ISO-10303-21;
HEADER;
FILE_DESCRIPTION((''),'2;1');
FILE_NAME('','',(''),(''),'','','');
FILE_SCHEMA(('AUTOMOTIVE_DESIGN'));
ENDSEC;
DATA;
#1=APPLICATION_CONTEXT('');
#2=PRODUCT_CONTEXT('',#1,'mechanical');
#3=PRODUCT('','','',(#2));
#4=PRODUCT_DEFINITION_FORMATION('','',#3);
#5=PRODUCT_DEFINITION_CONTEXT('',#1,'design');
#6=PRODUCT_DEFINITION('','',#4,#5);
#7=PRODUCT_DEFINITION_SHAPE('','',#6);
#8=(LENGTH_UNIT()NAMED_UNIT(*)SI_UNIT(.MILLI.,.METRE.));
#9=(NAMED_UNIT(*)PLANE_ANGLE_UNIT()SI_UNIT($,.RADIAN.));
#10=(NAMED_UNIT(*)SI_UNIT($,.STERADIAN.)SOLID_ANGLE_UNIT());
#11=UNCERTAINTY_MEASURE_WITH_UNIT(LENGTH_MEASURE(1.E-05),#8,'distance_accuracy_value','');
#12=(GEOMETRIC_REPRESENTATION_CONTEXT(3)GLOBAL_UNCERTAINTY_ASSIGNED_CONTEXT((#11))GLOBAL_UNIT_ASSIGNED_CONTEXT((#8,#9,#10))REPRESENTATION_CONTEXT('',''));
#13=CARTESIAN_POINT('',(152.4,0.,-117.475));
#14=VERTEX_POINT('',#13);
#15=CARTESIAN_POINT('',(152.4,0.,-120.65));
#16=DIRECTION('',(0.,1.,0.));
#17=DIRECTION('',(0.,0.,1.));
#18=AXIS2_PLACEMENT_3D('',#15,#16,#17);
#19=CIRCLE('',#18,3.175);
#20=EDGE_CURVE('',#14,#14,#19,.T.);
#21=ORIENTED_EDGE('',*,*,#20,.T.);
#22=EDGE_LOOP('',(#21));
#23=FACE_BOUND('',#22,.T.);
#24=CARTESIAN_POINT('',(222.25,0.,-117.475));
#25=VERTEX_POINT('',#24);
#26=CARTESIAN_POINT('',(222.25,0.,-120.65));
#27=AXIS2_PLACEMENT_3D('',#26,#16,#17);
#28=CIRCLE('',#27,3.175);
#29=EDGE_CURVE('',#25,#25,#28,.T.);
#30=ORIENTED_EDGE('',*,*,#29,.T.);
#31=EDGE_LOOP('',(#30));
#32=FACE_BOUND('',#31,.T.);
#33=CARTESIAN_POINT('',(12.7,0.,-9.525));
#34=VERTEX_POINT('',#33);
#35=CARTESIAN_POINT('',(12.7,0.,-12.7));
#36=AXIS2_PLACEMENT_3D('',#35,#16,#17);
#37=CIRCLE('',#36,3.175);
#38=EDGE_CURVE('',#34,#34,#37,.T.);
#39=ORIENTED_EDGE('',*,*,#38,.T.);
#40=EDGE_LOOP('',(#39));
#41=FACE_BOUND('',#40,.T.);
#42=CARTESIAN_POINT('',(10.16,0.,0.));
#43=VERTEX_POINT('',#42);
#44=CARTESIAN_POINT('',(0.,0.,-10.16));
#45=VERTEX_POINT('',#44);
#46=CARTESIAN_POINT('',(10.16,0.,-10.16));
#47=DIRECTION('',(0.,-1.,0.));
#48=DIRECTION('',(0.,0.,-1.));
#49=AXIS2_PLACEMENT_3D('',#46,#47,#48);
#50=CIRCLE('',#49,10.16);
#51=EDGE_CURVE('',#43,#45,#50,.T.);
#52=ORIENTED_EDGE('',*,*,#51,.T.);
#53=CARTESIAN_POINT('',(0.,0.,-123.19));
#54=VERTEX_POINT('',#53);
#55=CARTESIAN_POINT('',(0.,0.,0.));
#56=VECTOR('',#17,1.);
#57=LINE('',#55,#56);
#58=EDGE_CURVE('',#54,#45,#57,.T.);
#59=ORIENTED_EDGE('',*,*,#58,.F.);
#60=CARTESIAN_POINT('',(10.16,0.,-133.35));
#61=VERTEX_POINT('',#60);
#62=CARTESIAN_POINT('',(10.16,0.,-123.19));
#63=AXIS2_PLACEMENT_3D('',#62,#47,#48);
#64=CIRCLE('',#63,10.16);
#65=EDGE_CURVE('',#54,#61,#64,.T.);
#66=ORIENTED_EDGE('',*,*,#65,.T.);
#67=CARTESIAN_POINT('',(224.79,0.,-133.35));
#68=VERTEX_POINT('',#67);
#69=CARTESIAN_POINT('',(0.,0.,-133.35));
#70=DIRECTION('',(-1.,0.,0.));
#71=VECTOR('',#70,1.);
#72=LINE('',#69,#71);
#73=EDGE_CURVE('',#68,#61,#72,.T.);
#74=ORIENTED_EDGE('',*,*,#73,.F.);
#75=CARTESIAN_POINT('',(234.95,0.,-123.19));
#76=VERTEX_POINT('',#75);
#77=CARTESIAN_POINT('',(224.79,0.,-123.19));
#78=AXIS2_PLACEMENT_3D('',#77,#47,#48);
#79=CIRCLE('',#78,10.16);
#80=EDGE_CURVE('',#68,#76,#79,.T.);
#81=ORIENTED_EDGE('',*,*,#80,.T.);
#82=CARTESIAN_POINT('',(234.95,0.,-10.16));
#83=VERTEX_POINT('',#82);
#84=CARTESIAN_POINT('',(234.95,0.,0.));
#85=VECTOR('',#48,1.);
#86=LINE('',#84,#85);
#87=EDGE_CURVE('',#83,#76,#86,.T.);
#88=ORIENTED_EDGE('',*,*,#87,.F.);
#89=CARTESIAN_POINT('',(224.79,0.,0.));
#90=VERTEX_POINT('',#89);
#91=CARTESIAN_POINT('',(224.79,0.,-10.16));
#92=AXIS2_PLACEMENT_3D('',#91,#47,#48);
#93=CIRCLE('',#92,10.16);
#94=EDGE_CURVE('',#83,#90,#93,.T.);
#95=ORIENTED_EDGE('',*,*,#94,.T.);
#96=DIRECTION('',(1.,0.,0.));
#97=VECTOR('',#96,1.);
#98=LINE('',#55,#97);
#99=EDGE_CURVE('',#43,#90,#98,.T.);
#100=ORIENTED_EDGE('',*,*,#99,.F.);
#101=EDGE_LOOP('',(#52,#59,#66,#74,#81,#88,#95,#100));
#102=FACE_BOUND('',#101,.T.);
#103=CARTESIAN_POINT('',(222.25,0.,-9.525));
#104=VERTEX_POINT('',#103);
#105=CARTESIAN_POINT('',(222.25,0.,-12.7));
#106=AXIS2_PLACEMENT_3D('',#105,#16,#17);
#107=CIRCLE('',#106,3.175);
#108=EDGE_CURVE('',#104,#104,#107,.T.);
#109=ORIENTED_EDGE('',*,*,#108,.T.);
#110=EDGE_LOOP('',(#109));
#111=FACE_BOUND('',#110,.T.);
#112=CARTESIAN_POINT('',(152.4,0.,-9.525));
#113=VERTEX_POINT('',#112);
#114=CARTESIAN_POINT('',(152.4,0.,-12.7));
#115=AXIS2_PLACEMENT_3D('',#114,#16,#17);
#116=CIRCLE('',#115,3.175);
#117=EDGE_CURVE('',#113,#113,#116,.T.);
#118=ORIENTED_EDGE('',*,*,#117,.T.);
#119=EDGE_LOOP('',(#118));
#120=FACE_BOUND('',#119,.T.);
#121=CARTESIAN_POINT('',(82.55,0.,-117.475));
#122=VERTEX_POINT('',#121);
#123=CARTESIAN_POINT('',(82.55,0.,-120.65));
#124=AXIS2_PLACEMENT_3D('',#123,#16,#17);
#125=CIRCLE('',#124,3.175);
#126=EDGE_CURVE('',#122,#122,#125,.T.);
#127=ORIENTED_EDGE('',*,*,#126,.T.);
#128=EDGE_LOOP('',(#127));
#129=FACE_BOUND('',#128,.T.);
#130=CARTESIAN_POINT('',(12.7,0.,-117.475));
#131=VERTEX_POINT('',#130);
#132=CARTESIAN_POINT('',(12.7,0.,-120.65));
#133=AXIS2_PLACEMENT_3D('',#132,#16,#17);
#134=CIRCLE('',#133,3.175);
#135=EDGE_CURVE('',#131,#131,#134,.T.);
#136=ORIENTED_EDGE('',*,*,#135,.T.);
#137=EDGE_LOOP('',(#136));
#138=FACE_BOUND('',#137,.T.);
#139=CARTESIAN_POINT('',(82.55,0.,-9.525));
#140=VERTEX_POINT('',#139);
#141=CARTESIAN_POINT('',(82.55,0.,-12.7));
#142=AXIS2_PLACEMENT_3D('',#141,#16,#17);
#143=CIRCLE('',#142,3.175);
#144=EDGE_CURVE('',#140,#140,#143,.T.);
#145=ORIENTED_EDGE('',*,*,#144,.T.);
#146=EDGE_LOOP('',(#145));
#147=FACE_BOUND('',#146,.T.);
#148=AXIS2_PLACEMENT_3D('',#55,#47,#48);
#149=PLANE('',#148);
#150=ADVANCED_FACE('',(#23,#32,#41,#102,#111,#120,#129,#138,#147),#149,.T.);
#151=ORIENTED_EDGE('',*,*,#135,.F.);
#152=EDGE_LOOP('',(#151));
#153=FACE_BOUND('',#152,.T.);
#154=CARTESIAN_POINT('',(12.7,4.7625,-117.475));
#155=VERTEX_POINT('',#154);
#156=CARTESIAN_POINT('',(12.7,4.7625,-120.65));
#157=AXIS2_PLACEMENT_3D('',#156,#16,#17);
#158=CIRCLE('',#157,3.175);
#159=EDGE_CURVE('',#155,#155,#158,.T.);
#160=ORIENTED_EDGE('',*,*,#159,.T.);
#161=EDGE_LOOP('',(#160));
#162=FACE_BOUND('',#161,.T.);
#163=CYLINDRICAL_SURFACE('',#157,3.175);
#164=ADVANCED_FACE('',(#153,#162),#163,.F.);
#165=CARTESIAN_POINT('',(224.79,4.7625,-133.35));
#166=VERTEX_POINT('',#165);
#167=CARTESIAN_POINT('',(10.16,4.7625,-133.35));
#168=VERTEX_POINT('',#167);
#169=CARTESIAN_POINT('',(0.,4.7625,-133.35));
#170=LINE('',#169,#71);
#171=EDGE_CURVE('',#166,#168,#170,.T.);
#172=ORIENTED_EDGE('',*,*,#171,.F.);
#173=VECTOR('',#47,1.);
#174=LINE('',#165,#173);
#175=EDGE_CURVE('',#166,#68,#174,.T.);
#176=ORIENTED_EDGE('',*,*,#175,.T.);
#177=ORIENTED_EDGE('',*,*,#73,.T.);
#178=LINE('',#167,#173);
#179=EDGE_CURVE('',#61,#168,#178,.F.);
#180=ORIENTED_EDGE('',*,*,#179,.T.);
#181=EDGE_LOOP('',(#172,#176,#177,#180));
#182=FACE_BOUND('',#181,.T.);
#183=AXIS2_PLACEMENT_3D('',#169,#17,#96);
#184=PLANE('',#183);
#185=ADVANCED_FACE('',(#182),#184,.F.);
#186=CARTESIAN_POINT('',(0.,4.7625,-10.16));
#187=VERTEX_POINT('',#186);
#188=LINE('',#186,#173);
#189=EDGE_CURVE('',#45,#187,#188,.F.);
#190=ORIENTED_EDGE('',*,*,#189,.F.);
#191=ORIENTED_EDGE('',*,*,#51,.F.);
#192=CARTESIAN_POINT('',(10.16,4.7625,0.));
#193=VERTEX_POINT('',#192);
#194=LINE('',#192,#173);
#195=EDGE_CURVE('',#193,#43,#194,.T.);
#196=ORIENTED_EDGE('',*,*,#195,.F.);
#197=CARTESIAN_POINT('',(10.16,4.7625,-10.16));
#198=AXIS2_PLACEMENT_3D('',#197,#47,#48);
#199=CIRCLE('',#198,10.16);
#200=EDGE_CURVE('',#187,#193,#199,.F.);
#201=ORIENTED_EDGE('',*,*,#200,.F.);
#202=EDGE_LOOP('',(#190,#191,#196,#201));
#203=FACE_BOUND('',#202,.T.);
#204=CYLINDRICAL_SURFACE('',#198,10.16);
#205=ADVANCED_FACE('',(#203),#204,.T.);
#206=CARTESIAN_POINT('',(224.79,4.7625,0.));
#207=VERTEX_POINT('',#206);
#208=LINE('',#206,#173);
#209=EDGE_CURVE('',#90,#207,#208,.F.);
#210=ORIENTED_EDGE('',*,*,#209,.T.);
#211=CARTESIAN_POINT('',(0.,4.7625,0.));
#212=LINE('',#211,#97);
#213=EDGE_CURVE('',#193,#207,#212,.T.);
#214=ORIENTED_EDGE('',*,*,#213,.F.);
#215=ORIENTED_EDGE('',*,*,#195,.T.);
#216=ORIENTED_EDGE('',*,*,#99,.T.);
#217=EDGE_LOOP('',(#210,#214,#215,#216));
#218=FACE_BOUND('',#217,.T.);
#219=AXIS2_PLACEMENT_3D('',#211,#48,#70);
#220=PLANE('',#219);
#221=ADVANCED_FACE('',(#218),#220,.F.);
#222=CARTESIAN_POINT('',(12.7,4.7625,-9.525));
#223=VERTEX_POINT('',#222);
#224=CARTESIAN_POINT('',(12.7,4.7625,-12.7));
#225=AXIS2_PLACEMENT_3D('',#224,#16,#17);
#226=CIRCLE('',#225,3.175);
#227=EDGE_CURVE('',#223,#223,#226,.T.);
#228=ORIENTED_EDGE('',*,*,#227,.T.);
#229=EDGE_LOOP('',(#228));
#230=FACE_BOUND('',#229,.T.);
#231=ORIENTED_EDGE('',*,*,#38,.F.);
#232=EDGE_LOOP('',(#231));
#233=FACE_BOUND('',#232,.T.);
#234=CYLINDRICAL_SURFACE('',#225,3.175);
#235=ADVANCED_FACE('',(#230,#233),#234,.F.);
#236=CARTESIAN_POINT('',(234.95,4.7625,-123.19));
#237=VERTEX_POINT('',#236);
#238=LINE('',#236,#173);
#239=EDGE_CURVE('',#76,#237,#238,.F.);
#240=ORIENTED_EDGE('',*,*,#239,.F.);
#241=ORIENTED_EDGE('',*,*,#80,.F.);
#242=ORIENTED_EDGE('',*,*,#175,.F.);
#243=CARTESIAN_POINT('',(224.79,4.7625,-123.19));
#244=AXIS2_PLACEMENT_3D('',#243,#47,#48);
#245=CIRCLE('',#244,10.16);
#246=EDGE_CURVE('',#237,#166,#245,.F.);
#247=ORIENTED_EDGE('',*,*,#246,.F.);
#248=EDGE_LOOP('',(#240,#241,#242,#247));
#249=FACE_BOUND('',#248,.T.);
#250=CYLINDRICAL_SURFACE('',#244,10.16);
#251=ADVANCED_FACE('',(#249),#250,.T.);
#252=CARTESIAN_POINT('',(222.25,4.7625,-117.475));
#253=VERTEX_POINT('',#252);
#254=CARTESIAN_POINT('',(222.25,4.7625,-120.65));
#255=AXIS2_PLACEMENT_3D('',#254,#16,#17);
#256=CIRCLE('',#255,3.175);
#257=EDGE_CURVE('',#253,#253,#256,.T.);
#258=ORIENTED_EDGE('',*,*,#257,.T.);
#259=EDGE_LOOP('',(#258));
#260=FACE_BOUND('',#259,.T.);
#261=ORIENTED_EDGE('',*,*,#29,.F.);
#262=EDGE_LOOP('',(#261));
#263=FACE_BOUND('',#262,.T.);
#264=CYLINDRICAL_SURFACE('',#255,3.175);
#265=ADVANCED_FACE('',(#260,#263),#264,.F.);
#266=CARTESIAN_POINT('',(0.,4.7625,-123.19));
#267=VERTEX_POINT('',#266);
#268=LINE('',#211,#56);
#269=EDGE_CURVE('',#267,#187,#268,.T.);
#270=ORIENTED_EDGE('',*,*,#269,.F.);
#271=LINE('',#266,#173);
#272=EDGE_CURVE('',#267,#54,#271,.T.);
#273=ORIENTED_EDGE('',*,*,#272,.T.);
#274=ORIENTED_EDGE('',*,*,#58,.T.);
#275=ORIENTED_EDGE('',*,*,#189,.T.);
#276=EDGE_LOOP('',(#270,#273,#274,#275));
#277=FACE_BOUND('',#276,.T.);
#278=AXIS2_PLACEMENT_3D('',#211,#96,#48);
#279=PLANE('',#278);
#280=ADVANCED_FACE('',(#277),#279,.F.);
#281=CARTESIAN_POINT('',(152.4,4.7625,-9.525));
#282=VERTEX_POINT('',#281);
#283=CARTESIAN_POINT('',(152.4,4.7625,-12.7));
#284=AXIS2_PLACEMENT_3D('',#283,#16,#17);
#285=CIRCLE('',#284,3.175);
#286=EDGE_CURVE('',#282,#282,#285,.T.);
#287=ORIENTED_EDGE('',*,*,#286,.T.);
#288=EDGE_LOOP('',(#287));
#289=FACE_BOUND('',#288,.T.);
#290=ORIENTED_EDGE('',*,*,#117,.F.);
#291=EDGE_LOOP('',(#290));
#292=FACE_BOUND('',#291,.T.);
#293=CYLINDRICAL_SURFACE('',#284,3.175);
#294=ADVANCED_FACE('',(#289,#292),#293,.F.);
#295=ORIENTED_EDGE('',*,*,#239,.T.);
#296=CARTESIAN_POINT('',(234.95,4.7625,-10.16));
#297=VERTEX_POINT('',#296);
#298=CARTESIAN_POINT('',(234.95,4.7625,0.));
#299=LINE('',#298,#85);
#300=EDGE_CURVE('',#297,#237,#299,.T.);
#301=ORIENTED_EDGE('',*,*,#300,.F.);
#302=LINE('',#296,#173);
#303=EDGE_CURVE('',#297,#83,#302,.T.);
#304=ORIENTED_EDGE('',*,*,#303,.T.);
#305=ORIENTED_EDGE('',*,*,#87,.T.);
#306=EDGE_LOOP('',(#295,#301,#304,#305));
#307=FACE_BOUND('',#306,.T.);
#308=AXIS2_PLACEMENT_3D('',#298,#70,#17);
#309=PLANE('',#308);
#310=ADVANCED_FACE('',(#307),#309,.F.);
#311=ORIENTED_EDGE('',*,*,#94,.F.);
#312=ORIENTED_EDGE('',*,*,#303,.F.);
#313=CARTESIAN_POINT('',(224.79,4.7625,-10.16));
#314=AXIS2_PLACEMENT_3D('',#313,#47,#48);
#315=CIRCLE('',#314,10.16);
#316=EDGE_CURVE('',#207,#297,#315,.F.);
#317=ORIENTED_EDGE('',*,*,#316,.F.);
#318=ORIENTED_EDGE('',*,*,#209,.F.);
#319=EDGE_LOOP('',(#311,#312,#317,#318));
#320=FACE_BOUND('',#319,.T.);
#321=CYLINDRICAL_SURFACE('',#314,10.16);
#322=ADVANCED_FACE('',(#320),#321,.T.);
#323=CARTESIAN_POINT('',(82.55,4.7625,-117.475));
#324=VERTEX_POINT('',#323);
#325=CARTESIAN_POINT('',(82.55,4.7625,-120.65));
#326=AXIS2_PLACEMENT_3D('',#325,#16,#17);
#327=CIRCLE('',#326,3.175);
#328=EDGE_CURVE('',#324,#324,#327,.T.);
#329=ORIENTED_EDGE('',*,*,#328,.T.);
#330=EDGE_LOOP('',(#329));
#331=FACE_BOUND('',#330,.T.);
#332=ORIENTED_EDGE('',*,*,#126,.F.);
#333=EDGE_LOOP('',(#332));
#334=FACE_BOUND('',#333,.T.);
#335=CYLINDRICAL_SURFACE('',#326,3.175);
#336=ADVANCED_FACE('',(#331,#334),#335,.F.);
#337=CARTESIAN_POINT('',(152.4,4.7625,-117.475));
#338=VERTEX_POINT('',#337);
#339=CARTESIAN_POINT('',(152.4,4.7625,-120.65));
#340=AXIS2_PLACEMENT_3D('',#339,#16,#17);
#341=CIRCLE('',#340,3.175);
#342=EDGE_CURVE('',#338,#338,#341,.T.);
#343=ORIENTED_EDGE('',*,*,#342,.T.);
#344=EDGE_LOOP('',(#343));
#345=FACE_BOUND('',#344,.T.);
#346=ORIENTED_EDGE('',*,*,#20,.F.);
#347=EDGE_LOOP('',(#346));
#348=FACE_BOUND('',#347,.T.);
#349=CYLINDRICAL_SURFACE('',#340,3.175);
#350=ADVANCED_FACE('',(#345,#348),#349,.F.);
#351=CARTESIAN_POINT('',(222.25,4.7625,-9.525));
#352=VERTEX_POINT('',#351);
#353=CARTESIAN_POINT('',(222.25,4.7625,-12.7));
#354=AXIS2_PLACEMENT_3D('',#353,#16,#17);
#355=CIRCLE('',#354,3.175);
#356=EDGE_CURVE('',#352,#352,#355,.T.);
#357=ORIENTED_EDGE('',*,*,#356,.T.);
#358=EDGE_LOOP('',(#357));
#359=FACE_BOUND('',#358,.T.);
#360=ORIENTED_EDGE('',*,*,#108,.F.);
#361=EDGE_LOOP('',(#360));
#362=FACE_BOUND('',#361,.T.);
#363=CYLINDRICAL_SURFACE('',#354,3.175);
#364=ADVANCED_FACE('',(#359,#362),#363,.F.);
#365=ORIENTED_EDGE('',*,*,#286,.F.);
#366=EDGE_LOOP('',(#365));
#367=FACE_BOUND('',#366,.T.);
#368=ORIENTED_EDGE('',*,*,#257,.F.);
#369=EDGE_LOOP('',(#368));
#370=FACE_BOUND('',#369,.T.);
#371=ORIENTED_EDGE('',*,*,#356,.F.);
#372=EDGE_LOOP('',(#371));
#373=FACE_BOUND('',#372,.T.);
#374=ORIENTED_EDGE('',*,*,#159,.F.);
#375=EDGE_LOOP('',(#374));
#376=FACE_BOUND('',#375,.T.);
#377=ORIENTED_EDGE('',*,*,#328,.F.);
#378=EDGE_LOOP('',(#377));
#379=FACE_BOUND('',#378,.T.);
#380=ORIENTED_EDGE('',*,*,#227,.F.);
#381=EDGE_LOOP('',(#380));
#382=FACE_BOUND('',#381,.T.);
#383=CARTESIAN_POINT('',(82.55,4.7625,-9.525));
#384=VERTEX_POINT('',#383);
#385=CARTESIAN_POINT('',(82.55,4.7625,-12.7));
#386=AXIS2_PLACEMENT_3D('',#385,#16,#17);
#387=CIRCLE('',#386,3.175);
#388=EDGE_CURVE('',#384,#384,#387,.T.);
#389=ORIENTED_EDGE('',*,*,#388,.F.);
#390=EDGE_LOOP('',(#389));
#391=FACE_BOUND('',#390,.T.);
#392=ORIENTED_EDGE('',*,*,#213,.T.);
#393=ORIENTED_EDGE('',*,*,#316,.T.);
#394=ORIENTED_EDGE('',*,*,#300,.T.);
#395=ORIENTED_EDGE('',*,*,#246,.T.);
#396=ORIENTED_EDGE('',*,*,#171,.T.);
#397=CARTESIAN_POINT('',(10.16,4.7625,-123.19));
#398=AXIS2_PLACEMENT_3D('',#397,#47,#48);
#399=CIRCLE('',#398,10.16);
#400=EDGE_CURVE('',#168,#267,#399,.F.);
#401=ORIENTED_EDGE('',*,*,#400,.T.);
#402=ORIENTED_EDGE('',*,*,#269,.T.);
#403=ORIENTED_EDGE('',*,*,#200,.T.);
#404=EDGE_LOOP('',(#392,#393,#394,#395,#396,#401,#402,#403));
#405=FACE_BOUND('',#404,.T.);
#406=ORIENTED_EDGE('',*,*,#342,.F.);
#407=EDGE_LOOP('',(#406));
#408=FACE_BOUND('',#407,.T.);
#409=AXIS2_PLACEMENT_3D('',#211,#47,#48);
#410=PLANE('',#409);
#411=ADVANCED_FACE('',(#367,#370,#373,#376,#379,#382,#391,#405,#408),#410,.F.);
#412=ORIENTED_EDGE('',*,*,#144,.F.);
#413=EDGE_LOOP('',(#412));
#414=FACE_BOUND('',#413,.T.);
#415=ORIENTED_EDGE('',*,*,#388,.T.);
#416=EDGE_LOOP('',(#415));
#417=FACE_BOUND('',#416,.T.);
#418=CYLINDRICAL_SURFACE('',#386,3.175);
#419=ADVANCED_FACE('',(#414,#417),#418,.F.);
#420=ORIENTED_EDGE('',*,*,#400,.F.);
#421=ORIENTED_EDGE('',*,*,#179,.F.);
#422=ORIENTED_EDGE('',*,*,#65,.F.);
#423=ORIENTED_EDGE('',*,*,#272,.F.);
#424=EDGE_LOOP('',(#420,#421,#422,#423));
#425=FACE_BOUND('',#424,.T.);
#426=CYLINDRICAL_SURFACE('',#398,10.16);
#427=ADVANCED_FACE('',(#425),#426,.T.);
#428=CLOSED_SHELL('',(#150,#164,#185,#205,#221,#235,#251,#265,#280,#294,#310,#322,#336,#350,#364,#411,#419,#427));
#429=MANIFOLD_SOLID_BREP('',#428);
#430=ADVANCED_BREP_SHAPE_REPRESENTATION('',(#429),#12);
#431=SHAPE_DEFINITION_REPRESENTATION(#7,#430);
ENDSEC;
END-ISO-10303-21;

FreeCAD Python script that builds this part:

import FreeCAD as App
import Part
import Sketcher

V = App.Vector
Q = App.Units.Quantity


def edges_at(feature, points):
    """Names of the edges that pass closest to the given points."""
    edges = feature.Shape.Edges
    near = lambda p: min(range(len(edges)), key=lambda i: edges[i].distToShape(Part.Vertex(*p))[0])
    return sorted({f"Edge{near(p) + 1}" for p in points})

doc = App.newDocument("Part")
body = doc.addObject("PartDesign::Body", "Body")

# Sketch on XZ plane
sketch1 = body.newObject("Sketcher::SketchObject", "Sketch")
sketch1.AttachmentSupport = (doc.getObject("XZ_Plane"), [""])
sketch1.MapMode = "FlatFace"
sketch1.addGeometry(Part.LineSegment(V(0, -133, 0), V(0, 0, 0)), False)
sketch1.addGeometry(Part.LineSegment(V(0, 0, 0), V(235, 0, 0)), False)
sketch1.addGeometry(Part.LineSegment(V(235, 0, 0), V(235, -133, 0)), False)
sketch1.addGeometry(Part.LineSegment(V(235, -133, 0), V(0, -133, 0)), False)
sketch1.addConstraint(Sketcher.Constraint("Coincident", 0, 2, 1, 1))
sketch1.addConstraint(Sketcher.Constraint("Coincident", 1, 2, 2, 1))
sketch1.addConstraint(Sketcher.Constraint("Coincident", 2, 2, 3, 1))
sketch1.addConstraint(Sketcher.Constraint("Coincident", 3, 2, 0, 1))
sketch1.addConstraint(Sketcher.Constraint("Vertical", 0))
sketch1.addConstraint(Sketcher.Constraint("Horizontal", 1))
sketch1.addConstraint(Sketcher.Constraint("Vertical", 2))
sketch1.addConstraint(Sketcher.Constraint("Horizontal", 3))
sketch1.addConstraint(Sketcher.Constraint("Coincident", 0, 2, -1, 1))
sketch1.addConstraint(Sketcher.Constraint("DistanceX", 1, 1, 1, 2, Q("9.25 in")))
sketch1.addConstraint(Sketcher.Constraint("DistanceY", 0, 1, 0, 2, Q("5.25 in")))
pad1 = body.newObject("PartDesign::Pad", "Pad")
pad1.Profile = sketch1
pad1.Length = Q("0.1875 in")
pad1.Reversed = True
doc.recompute()

fillet = body.newObject("PartDesign::Fillet", "Fillet")
fillet.Base = (pad1, edges_at(pad1, [
    (0, 2.381, -133.35),
    (234.95, 2.381, -133.35),
    (234.95, 2.381, 0),
    (0, 2.381, 0),
]))
fillet.Radius = Q("0.4 in")

# Sketch on XZ plane
sketch2 = body.newObject("Sketcher::SketchObject", "Sketch001")
sketch2.AttachmentSupport = (doc.getObject("XZ_Plane"), [""])
sketch2.MapMode = "FlatFace"
sketch2.AttachmentOffset = App.Placement(V(0, 0, -0.1875 * 25.4), App.Rotation())
sketch2.addGeometry(Part.Circle(V(12.7, -120.7, 0), V(0, 0, 1), 3.2), False)
sketch2.addGeometry(Part.Circle(V(82.5, -120.7, 0), V(0, 0, 1), 3.2), False)
sketch2.addGeometry(Part.Circle(V(152.4, -120.7, 0), V(0, 0, 1), 3.2), False)
sketch2.addGeometry(Part.Circle(V(222.2, -120.7, 0), V(0, 0, 1), 3.2), False)
sketch2.addConstraint(Sketcher.Constraint("Equal", 0, 1))
sketch2.addConstraint(Sketcher.Constraint("Equal", 1, 2))
sketch2.addConstraint(Sketcher.Constraint("Equal", 2, 3))
sketch2.addConstraint(Sketcher.Constraint("Horizontal", 0, 3, 1, 3))
sketch2.addConstraint(Sketcher.Constraint("Horizontal", 1, 3, 2, 3))
sketch2.addConstraint(Sketcher.Constraint("Horizontal", 2, 3, 3, 3))
sketch2.addConstraint(Sketcher.Constraint("Diameter", 0, Q("0.25 in")))
sketch2.addConstraint(Sketcher.Constraint("DistanceX", -1, 1, 2, 3, Q("6 in")))
sketch2.addConstraint(Sketcher.Constraint("DistanceX", -1, 1, 0, 3, Q("0.5 in")))
sketch2.addConstraint(Sketcher.Constraint("DistanceX", 1, 3, 3, 3, Q("5.5 in")))
sketch2.addConstraint(Sketcher.Constraint("DistanceY", 0, 3, -1, 1, Q("4.75 in")))
sketch2.addConstraint(Sketcher.Constraint("DistanceX", -1, 1, 1, 3, Q("3.25 in")))
doc.recompute()
hole = body.newObject("PartDesign::Hole", "Hole")
hole.Profile = sketch2
hole.ThreadType = "None"
hole.Diameter = Q("0.25 in")
hole.DepthType = "ThroughAll"
hole.Reversed = True
doc.recompute()

datumplane = body.newObject("PartDesign::Plane", "DatumPlane")
datumplane.AttachmentSupport = (doc.getObject("XY_Plane"), [""])
datumplane.MapMode = "FlatFace"
datumplane.AttachmentOffset = App.Placement(V(0, 0, -2.625 * 25.4), App.Rotation())
mirrored = body.newObject("PartDesign::Mirrored", "Mirrored")
mirrored.Originals = [hole]
mirrored.MirrorPlane = (datumplane, [""])
body.Tip = mirrored

doc.recompute()
